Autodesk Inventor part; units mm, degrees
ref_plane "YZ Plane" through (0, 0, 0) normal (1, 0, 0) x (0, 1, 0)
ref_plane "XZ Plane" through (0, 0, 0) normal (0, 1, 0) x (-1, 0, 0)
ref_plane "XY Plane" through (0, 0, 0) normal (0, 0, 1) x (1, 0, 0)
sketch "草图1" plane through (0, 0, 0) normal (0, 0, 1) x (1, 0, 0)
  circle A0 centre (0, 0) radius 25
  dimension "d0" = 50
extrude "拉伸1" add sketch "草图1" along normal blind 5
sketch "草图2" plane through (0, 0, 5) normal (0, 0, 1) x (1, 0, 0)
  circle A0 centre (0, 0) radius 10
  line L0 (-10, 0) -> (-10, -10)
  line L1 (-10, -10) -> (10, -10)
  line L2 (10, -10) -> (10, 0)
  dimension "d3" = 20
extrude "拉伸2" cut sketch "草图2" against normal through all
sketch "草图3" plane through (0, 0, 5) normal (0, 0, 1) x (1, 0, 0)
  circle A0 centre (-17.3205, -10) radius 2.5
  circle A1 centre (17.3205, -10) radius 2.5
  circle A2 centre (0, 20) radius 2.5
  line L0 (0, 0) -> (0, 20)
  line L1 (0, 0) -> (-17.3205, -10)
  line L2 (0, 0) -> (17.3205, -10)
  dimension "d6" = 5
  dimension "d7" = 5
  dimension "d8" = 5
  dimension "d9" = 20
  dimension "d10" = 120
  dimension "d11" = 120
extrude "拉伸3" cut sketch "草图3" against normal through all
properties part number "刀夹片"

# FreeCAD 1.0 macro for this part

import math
import FreeCAD as App
import Part
import Sketcher

doc = App.newDocument("Part")
body = doc.addObject("PartDesign::Body", "Body")

# Sketch on XY plane
sketch1 = doc.addObject("Sketcher::SketchObject", "Sketch")
body.addObject(sketch1)
sketch1.AttachmentSupport = (doc.XY_Plane, [""])
sketch1.MapMode = "FlatFace"
sketch1.addGeometry(Part.Circle(App.Vector(0, 0, 0), App.Vector(0, 0, 1), 25), False)
sketch1.addConstraint([
    Sketcher.Constraint("Coincident", 0, 3, -1, 1),
    Sketcher.Constraint("Diameter", 0, 50.0),
])
pad1 = doc.addObject("PartDesign::Pad", "Pad")
body.addObject(pad1)
pad1.Profile = sketch1
pad1.Length = 5

# Sketch on XY plane
sketch2 = doc.addObject("Sketcher::SketchObject", "Sketch001")
body.addObject(sketch2)
sketch2.AttachmentSupport = (doc.XY_Plane, [""])
sketch2.MapMode = "FlatFace"
sketch2.AttachmentOffset = App.Placement(App.Vector(0, 0, 5), App.Rotation())
sketch2.addGeometry([
    Part.ArcOfCircle(Part.Circle(App.Vector(0, 0, 0), App.Vector(0, 0, 1), 10), math.radians(0), math.radians(180)),
    Part.LineSegment(App.Vector(-10, 0, 0), App.Vector(-10, -10, 0)),
    Part.LineSegment(App.Vector(-10, -10, 0), App.Vector(10, -10, 0)),
    Part.LineSegment(App.Vector(10, -10, 0), App.Vector(10, 0, 0)),
], False)
sketch2.addConstraint([
    Sketcher.Constraint("Tangent", 0, 2, 1, 1),
    Sketcher.Constraint("Coincident", 1, 2, 2, 1),
    Sketcher.Constraint("Coincident", 2, 2, 3, 1),
    Sketcher.Constraint("Tangent", 3, 2, 0, 1),
    Sketcher.Constraint("Vertical", 1),
    Sketcher.Constraint("Horizontal", 2),
    Sketcher.Constraint("Vertical", 3),
    Sketcher.Constraint("Coincident", 0, 3, -1, 1),
    Sketcher.Constraint("Radius", 0, 10.0),
    Sketcher.Constraint("DistanceY", 1, 2, 1, 1, 10.0),
])
pocket1 = doc.addObject("PartDesign::Pocket", "Pocket")
body.addObject(pocket1)
pocket1.Profile = sketch2
pocket1.Type = "ThroughAll"

# Sketch on XY plane
sketch3 = doc.addObject("Sketcher::SketchObject", "Sketch002")
body.addObject(sketch3)
sketch3.AttachmentSupport = (doc.XY_Plane, [""])
sketch3.MapMode = "FlatFace"
sketch3.AttachmentOffset = App.Placement(App.Vector(0, 0, 5), App.Rotation())
sketch3.addGeometry([
    Part.Circle(App.Vector(-17.3, -10, 0), App.Vector(0, 0, 1), 2.5),
    Part.Circle(App.Vector(0, 20, 0), App.Vector(0, 0, 1), 2.5),
    Part.Circle(App.Vector(17.3, -10, 0), App.Vector(0, 0, 1), 2.5),
], False)
sketch3.addConstraint([
    Sketcher.Constraint("Equal", 0, 1),
    Sketcher.Constraint("Equal", 1, 2),
    Sketcher.Constraint("Symmetric", 0, 3, 2, 3, -2),
    Sketcher.Constraint("PointOnObject", 1, 3, -2),
    Sketcher.Constraint("Diameter", 0, 5.0),
    Sketcher.Constraint("DistanceY", -1, 1, 1, 3, 20.0),
    Sketcher.Constraint("DistanceY", 0, 3, -1, 1, 10.0),
    Sketcher.Constraint("DistanceX", 0, 3, 2, 3, 34.641),
])
pocket2 = doc.addObject("PartDesign::Pocket", "Pocket001")
body.addObject(pocket2)
pocket2.Profile = sketch3
pocket2.Type = "ThroughAll"

doc.recompute()
